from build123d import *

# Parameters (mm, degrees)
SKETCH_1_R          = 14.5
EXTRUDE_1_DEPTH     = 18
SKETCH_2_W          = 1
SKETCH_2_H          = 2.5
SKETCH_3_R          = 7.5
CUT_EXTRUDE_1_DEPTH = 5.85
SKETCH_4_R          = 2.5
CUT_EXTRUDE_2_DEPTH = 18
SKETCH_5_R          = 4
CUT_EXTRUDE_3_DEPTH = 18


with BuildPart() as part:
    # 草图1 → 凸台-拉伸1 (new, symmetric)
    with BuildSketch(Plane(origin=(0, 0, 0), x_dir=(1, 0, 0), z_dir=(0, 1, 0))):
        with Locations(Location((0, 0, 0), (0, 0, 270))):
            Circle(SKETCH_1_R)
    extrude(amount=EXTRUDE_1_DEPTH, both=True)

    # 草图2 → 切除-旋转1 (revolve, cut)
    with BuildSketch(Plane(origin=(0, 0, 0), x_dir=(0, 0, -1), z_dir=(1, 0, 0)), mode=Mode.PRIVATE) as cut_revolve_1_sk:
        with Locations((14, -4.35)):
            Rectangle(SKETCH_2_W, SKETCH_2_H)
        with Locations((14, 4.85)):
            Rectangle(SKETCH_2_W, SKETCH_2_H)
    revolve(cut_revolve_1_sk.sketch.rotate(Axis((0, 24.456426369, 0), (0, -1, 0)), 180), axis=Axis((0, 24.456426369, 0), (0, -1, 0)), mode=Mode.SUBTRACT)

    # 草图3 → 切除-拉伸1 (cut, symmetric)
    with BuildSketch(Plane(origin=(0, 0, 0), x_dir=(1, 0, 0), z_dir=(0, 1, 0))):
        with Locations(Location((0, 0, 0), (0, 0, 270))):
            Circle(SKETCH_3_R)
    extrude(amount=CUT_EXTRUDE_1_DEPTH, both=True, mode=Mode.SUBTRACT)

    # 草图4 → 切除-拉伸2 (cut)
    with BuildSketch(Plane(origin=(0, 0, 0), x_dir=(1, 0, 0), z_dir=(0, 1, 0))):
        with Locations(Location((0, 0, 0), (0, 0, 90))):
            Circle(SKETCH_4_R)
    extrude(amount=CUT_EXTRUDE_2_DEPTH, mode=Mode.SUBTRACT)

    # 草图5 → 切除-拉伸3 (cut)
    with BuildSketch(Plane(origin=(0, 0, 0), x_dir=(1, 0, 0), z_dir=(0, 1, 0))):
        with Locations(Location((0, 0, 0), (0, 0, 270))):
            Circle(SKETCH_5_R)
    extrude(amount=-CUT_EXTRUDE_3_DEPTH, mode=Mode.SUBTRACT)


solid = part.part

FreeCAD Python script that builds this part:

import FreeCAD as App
import Part
import Sketcher
from FreeCAD import Vector


def add_polygon(sketch, points):
    """Adds a closed chain of lines whose ends are joined by coincident constraints."""
    first, n = sketch.GeometryCount, len(points)
    for a, b in zip(points, points[1:] + points[:1]):
        sketch.addGeometry(Part.LineSegment(App.Vector(*a, 0), App.Vector(*b, 0)), False)
    for i in range(n):
        sketch.addConstraint(Sketcher.Constraint("Coincident", first + i, 2, first + (i + 1) % n, 1))

doc = App.newDocument("Part")
params = doc.addObject("Spreadsheet::Sheet", "Params")
for row, (alias, value) in enumerate([
    ("sketch1_diameter", "29 mm"),
    ("pad1_length", "36 mm"),
    ("sketch2_height", "1 mm"),
    ("sketch2_width", "2.5 mm"),
    ("groove_angle", "360 deg"),
    ("sketch3_diameter", "15 mm"),
    ("pocket1_length", "11.7 mm"),
    ("sketch4_diameter", "5 mm"),
    ("pocket2_length", "18 mm"),
    ("sketch5_diameter", "8 mm"),
    ("pocket3_length", "18 mm"),
], start=1):
    params.set(f"A{row}", alias)
    params.set(f"B{row}", "=" + value)
    params.setAlias(f"B{row}", alias)

body = doc.addObject("PartDesign::Body", "Body")

sketch1 = body.newObject("Sketcher::SketchObject", "Sketch")
sketch1.AttachmentSupport = (doc.getObject("XZ_Plane"), [""])
sketch1.MapMode = "FlatFace"
sketch1.addGeometry(Part.Circle(Vector(0, 0, 0), Vector(0, 0, 1), 14.5), False)
sketch1.addConstraint(Sketcher.Constraint("Coincident", 0, 3, -1, 1))
sketch1.addConstraint(Sketcher.Constraint("Diameter", 0, 29.0))
sketch1.setExpression("Constraints[1]", "Params.sketch1_diameter")
pad1 = body.newObject("PartDesign::Pad", "Pad")
pad1.Profile = sketch1
pad1.setExpression("Length", "Params.pad1_length")
pad1.Midplane = True

sketch2 = body.newObject("Sketcher::SketchObject", "Sketch001")
sketch2.AttachmentSupport = (doc.getObject("YZ_Plane"), [""])
sketch2.MapMode = "FlatFace"
add_polygon(sketch2, [(-3.1, -13.5), (-5.6, -13.5), (-5.6, -14.5), (-3.1, -14.5)])
add_polygon(sketch2, [(6.1, -13.5), (3.6, -13.5), (3.6, -14.5), (6.1, -14.5)])
sketch2.addConstraint(Sketcher.Constraint("Horizontal", 0))
sketch2.addConstraint(Sketcher.Constraint("Vertical", 1))
sketch2.addConstraint(Sketcher.Constraint("Horizontal", 2))
sketch2.addConstraint(Sketcher.Constraint("Vertical", 3))
sketch2.addConstraint(Sketcher.Constraint("Horizontal", 4))
sketch2.addConstraint(Sketcher.Constraint("Vertical", 5))
sketch2.addConstraint(Sketcher.Constraint("Horizontal", 6))
sketch2.addConstraint(Sketcher.Constraint("Vertical", 7))
sketch2.addConstraint(Sketcher.Constraint("Horizontal", 3, 2, 4, 2))
sketch2.addConstraint(Sketcher.Constraint("Horizontal", 2, 2, 5, 2))
sketch2.addConstraint(Sketcher.Constraint("Equal", 2, 4))
sketch2.addConstraint(Sketcher.Constraint("DistanceY", 1, 2, 1, 1, 1.0))
sketch2.addConstraint(Sketcher.Constraint("DistanceX", 0, 2, 0, 1, 2.5))
sketch2.addConstraint(Sketcher.Constraint("DistanceX", 0, 2, -1, 1, 5.6))
sketch2.addConstraint(Sketcher.Constraint("DistanceY", 0, 2, -1, 1, 13.5))
sketch2.addConstraint(Sketcher.Constraint("DistanceX", -1, 1, 4, 2, 3.6))
sketch2.setExpression("Constraints[19]", "Params.sketch2_height")
sketch2.setExpression("Constraints[20]", "Params.sketch2_width")
groove = body.newObject("PartDesign::Groove", "Groove")
groove.Profile = sketch2
groove.ReferenceAxis = (sketch2, ["H_Axis"])
groove.setExpression("Angle", "Params.groove_angle")

sketch3 = body.newObject("Sketcher::SketchObject", "Sketch002")
sketch3.AttachmentSupport = (doc.getObject("XZ_Plane"), [""])
sketch3.MapMode = "FlatFace"
sketch3.addGeometry(Part.Circle(Vector(0, 0, 0), Vector(0, 0, 1), 7.5), False)
sketch3.addConstraint(Sketcher.Constraint("Coincident", 0, 3, -1, 1))
sketch3.addConstraint(Sketcher.Constraint("Diameter", 0, 15.0))
sketch3.setExpression("Constraints[1]", "Params.sketch3_diameter")
pocket1 = body.newObject("PartDesign::Pocket", "Pocket")
pocket1.Profile = sketch3
pocket1.setExpression("Length", "Params.pocket1_length")
pocket1.Midplane = True

sketch4 = body.newObject("Sketcher::SketchObject", "Sketch003")
sketch4.AttachmentSupport = (doc.getObject("XZ_Plane"), [""])
sketch4.MapMode = "FlatFace"
sketch4.addGeometry(Part.Circle(Vector(0, 0, 0), Vector(0, 0, 1), 2.5), False)
sketch4.addConstraint(Sketcher.Constraint("Coincident", 0, 3, -1, 1))
sketch4.addConstraint(Sketcher.Constraint("Diameter", 0, 5.0))
sketch4.setExpression("Constraints[1]", "Params.sketch4_diameter")
pocket2 = body.newObject("PartDesign::Pocket", "Pocket001")
pocket2.Profile = sketch4
pocket2.setExpression("Length", "Params.pocket2_length")

sketch5 = body.newObject("Sketcher::SketchObject", "Sketch004")
sketch5.AttachmentSupport = (doc.getObject("XZ_Plane"), [""])
sketch5.MapMode = "FlatFace"
sketch5.addGeometry(Part.Circle(Vector(0, 0, 0), Vector(0, 0, 1), 4), False)
sketch5.addConstraint(Sketcher.Constraint("Coincident", 0, 3, -1, 1))
sketch5.addConstraint(Sketcher.Constraint("Diameter", 0, 8.0))
sketch5.setExpression("Constraints[1]", "Params.sketch5_diameter")
pocket3 = body.newObject("PartDesign::Pocket", "Pocket002")
pocket3.Profile = sketch5
pocket3.setExpression("Length", "Params.pocket3_length")
pocket3.Reversed = True

doc.recompute()
